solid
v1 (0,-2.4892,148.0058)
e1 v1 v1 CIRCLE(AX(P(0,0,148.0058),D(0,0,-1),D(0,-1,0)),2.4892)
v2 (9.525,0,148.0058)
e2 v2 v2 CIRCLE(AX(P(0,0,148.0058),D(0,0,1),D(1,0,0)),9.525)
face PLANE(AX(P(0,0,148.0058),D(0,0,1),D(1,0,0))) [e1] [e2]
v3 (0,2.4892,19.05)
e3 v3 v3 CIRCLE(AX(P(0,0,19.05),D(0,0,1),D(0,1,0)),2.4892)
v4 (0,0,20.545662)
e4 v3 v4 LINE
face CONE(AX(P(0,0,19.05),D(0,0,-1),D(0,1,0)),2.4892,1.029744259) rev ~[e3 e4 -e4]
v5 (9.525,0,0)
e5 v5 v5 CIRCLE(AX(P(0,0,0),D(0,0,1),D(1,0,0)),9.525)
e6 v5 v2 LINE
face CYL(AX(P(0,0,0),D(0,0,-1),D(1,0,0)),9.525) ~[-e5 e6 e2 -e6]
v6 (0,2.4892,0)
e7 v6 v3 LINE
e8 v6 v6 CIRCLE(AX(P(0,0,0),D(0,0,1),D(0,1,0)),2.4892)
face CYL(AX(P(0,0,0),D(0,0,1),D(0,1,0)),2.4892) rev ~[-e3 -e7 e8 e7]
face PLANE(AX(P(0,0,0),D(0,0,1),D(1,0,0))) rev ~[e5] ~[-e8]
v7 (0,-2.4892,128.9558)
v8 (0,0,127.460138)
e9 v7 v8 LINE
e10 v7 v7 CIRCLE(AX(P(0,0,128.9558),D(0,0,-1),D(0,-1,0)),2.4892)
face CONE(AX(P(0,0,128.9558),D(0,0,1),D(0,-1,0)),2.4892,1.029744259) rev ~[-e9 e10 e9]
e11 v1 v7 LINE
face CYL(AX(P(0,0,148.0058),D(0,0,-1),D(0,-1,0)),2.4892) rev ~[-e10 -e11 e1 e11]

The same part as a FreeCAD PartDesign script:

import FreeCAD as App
import Part
import Sketcher
Q = App.Units.Quantity

doc = App.newDocument("Part")
body = doc.addObject("PartDesign::Body", "Body")

# Sketch on XY plane
sketch1 = body.newObject("Sketcher::SketchObject", "Sketch")
sketch1.AttachmentSupport = (doc.getObject("XY_Plane"), [""])
sketch1.MapMode = "FlatFace"
sketch1.addGeometry(Part.Circle(App.Vector(0, 0, 0), App.Vector(0, 0, 1), 10), False)
sketch1.addConstraint([
    Sketcher.Constraint("Coincident", 0, 3, -1, 1),
    Sketcher.Constraint("Diameter", 0, Q("0.75 in")),
])
pad1 = body.newObject("PartDesign::Pad", "Pad")
pad1.Profile = sketch1
pad1.Length = Q("5.827 in")

# Sketch on XY plane
sketch2 = body.newObject("Sketcher::SketchObject", "Sketch001")
sketch2.AttachmentSupport = (doc.getObject("XY_Plane"), [""])
sketch2.MapMode = "FlatFace"
sketch2.addGeometry(Part.Circle(App.Vector(0, 0, 0), App.Vector(0, 0, 1), 2.5), False)
sketch2.addConstraint([
    Sketcher.Constraint("Coincident", 0, 3, -1, 1),
    Sketcher.Constraint("Diameter", 0, Q("0.196 in")),
])
doc.recompute()
hole = body.newObject("PartDesign::Hole", "Hole")
hole.Profile = sketch2
hole.ThreadType = "None"
hole.Diameter = Q("0.196 in")
hole.DepthType = "Dimension"
hole.Depth = Q("0.75 in")
hole.DrillPoint = "Angled"
hole.DrillPointAngle = 118
hole.Reversed = True

# Sketch on XY plane
sketch3 = body.newObject("Sketcher::SketchObject", "Sketch002")
sketch3.AttachmentSupport = (doc.getObject("XY_Plane"), [""])
sketch3.MapMode = "FlatFace"
sketch3.AttachmentOffset = App.Placement(App.Vector(0, 0, 5.827 * 25.4), App.Rotation())
sketch3.addGeometry(Part.Circle(App.Vector(0, 0, 0), App.Vector(0, 0, 1), 2.5), False)
sketch3.addConstraint([
    Sketcher.Constraint("Coincident", 0, 3, -1, 1),
    Sketcher.Constraint("Diameter", 0, Q("0.196 in")),
])
doc.recompute()
hole2 = body.newObject("PartDesign::Hole", "Hole001")
hole2.Profile = sketch3
hole2.ThreadType = "None"
hole2.Diameter = Q("0.196 in")
hole2.DepthType = "Dimension"
hole2.Depth = Q("0.75 in")
hole2.DrillPoint = "Angled"
hole2.DrillPointAngle = 118

doc.recompute()
